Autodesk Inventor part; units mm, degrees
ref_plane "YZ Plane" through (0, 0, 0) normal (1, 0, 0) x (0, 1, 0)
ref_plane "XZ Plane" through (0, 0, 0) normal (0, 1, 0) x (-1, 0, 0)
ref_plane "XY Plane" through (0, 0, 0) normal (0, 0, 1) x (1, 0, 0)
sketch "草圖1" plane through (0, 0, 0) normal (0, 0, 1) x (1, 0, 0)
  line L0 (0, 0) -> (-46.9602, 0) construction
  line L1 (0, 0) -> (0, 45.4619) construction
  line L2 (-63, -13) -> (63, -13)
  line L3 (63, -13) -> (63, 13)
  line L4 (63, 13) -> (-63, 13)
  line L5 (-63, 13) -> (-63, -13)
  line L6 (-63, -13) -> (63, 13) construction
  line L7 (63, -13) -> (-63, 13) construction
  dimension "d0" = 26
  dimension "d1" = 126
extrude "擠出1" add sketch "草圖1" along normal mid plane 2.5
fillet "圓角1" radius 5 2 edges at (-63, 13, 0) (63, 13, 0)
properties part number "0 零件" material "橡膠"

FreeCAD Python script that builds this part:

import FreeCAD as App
import Part
import Sketcher
from FreeCAD import Vector


def edges_at(feature, points):
    """Names of the edges that pass closest to the given points."""
    edges = feature.Shape.Edges
    near = lambda p: min(range(len(edges)), key=lambda i: edges[i].distToShape(Part.Vertex(*p))[0])
    return sorted({f"Edge{near(p) + 1}" for p in points})


def add_polygon(sketch, points):
    """Adds a closed chain of lines whose ends are joined by coincident constraints."""
    first, n = sketch.GeometryCount, len(points)
    for a, b in zip(points, points[1:] + points[:1]):
        sketch.addGeometry(Part.LineSegment(App.Vector(*a, 0), App.Vector(*b, 0)), False)
    for i in range(n):
        sketch.addConstraint(Sketcher.Constraint("Coincident", first + i, 2, first + (i + 1) % n, 1))

doc = App.newDocument("Part")
body = doc.addObject("PartDesign::Body", "Body")

# Sketch on XY plane
sketch1 = body.newObject("Sketcher::SketchObject", "Sketch")
sketch1.AttachmentSupport = (doc.getObject("XY_Plane"), [""])
sketch1.MapMode = "FlatFace"
add_polygon(sketch1, [(-63, 13), (-63, -13), (63, -13), (63, 13)])  # lines 0-3
sketch1.addConstraint(Sketcher.Constraint("Vertical", 0))
sketch1.addConstraint(Sketcher.Constraint("Horizontal", 1))
sketch1.addConstraint(Sketcher.Constraint("Vertical", 2))
sketch1.addConstraint(Sketcher.Constraint("Horizontal", 3))
sketch1.addConstraint(Sketcher.Constraint("Symmetric", 0, 2, 2, 2, -1, 1))
sketch1.addConstraint(Sketcher.Constraint("DistanceX", 1, 1, 1, 2, 126.0))
sketch1.addConstraint(Sketcher.Constraint("DistanceY", 0, 2, 0, 1, 26.0))
pad1 = body.newObject("PartDesign::Pad", "Pad")
pad1.Profile = sketch1
pad1.Length = 2.5
pad1.Midplane = True
doc.recompute()

fillet = body.newObject("PartDesign::Fillet", "Fillet")
fillet.Base = (pad1, edges_at(pad1, [(-63, 13, 0), (63, 13, 0)]))
fillet.Radius = 5

doc.recompute()
